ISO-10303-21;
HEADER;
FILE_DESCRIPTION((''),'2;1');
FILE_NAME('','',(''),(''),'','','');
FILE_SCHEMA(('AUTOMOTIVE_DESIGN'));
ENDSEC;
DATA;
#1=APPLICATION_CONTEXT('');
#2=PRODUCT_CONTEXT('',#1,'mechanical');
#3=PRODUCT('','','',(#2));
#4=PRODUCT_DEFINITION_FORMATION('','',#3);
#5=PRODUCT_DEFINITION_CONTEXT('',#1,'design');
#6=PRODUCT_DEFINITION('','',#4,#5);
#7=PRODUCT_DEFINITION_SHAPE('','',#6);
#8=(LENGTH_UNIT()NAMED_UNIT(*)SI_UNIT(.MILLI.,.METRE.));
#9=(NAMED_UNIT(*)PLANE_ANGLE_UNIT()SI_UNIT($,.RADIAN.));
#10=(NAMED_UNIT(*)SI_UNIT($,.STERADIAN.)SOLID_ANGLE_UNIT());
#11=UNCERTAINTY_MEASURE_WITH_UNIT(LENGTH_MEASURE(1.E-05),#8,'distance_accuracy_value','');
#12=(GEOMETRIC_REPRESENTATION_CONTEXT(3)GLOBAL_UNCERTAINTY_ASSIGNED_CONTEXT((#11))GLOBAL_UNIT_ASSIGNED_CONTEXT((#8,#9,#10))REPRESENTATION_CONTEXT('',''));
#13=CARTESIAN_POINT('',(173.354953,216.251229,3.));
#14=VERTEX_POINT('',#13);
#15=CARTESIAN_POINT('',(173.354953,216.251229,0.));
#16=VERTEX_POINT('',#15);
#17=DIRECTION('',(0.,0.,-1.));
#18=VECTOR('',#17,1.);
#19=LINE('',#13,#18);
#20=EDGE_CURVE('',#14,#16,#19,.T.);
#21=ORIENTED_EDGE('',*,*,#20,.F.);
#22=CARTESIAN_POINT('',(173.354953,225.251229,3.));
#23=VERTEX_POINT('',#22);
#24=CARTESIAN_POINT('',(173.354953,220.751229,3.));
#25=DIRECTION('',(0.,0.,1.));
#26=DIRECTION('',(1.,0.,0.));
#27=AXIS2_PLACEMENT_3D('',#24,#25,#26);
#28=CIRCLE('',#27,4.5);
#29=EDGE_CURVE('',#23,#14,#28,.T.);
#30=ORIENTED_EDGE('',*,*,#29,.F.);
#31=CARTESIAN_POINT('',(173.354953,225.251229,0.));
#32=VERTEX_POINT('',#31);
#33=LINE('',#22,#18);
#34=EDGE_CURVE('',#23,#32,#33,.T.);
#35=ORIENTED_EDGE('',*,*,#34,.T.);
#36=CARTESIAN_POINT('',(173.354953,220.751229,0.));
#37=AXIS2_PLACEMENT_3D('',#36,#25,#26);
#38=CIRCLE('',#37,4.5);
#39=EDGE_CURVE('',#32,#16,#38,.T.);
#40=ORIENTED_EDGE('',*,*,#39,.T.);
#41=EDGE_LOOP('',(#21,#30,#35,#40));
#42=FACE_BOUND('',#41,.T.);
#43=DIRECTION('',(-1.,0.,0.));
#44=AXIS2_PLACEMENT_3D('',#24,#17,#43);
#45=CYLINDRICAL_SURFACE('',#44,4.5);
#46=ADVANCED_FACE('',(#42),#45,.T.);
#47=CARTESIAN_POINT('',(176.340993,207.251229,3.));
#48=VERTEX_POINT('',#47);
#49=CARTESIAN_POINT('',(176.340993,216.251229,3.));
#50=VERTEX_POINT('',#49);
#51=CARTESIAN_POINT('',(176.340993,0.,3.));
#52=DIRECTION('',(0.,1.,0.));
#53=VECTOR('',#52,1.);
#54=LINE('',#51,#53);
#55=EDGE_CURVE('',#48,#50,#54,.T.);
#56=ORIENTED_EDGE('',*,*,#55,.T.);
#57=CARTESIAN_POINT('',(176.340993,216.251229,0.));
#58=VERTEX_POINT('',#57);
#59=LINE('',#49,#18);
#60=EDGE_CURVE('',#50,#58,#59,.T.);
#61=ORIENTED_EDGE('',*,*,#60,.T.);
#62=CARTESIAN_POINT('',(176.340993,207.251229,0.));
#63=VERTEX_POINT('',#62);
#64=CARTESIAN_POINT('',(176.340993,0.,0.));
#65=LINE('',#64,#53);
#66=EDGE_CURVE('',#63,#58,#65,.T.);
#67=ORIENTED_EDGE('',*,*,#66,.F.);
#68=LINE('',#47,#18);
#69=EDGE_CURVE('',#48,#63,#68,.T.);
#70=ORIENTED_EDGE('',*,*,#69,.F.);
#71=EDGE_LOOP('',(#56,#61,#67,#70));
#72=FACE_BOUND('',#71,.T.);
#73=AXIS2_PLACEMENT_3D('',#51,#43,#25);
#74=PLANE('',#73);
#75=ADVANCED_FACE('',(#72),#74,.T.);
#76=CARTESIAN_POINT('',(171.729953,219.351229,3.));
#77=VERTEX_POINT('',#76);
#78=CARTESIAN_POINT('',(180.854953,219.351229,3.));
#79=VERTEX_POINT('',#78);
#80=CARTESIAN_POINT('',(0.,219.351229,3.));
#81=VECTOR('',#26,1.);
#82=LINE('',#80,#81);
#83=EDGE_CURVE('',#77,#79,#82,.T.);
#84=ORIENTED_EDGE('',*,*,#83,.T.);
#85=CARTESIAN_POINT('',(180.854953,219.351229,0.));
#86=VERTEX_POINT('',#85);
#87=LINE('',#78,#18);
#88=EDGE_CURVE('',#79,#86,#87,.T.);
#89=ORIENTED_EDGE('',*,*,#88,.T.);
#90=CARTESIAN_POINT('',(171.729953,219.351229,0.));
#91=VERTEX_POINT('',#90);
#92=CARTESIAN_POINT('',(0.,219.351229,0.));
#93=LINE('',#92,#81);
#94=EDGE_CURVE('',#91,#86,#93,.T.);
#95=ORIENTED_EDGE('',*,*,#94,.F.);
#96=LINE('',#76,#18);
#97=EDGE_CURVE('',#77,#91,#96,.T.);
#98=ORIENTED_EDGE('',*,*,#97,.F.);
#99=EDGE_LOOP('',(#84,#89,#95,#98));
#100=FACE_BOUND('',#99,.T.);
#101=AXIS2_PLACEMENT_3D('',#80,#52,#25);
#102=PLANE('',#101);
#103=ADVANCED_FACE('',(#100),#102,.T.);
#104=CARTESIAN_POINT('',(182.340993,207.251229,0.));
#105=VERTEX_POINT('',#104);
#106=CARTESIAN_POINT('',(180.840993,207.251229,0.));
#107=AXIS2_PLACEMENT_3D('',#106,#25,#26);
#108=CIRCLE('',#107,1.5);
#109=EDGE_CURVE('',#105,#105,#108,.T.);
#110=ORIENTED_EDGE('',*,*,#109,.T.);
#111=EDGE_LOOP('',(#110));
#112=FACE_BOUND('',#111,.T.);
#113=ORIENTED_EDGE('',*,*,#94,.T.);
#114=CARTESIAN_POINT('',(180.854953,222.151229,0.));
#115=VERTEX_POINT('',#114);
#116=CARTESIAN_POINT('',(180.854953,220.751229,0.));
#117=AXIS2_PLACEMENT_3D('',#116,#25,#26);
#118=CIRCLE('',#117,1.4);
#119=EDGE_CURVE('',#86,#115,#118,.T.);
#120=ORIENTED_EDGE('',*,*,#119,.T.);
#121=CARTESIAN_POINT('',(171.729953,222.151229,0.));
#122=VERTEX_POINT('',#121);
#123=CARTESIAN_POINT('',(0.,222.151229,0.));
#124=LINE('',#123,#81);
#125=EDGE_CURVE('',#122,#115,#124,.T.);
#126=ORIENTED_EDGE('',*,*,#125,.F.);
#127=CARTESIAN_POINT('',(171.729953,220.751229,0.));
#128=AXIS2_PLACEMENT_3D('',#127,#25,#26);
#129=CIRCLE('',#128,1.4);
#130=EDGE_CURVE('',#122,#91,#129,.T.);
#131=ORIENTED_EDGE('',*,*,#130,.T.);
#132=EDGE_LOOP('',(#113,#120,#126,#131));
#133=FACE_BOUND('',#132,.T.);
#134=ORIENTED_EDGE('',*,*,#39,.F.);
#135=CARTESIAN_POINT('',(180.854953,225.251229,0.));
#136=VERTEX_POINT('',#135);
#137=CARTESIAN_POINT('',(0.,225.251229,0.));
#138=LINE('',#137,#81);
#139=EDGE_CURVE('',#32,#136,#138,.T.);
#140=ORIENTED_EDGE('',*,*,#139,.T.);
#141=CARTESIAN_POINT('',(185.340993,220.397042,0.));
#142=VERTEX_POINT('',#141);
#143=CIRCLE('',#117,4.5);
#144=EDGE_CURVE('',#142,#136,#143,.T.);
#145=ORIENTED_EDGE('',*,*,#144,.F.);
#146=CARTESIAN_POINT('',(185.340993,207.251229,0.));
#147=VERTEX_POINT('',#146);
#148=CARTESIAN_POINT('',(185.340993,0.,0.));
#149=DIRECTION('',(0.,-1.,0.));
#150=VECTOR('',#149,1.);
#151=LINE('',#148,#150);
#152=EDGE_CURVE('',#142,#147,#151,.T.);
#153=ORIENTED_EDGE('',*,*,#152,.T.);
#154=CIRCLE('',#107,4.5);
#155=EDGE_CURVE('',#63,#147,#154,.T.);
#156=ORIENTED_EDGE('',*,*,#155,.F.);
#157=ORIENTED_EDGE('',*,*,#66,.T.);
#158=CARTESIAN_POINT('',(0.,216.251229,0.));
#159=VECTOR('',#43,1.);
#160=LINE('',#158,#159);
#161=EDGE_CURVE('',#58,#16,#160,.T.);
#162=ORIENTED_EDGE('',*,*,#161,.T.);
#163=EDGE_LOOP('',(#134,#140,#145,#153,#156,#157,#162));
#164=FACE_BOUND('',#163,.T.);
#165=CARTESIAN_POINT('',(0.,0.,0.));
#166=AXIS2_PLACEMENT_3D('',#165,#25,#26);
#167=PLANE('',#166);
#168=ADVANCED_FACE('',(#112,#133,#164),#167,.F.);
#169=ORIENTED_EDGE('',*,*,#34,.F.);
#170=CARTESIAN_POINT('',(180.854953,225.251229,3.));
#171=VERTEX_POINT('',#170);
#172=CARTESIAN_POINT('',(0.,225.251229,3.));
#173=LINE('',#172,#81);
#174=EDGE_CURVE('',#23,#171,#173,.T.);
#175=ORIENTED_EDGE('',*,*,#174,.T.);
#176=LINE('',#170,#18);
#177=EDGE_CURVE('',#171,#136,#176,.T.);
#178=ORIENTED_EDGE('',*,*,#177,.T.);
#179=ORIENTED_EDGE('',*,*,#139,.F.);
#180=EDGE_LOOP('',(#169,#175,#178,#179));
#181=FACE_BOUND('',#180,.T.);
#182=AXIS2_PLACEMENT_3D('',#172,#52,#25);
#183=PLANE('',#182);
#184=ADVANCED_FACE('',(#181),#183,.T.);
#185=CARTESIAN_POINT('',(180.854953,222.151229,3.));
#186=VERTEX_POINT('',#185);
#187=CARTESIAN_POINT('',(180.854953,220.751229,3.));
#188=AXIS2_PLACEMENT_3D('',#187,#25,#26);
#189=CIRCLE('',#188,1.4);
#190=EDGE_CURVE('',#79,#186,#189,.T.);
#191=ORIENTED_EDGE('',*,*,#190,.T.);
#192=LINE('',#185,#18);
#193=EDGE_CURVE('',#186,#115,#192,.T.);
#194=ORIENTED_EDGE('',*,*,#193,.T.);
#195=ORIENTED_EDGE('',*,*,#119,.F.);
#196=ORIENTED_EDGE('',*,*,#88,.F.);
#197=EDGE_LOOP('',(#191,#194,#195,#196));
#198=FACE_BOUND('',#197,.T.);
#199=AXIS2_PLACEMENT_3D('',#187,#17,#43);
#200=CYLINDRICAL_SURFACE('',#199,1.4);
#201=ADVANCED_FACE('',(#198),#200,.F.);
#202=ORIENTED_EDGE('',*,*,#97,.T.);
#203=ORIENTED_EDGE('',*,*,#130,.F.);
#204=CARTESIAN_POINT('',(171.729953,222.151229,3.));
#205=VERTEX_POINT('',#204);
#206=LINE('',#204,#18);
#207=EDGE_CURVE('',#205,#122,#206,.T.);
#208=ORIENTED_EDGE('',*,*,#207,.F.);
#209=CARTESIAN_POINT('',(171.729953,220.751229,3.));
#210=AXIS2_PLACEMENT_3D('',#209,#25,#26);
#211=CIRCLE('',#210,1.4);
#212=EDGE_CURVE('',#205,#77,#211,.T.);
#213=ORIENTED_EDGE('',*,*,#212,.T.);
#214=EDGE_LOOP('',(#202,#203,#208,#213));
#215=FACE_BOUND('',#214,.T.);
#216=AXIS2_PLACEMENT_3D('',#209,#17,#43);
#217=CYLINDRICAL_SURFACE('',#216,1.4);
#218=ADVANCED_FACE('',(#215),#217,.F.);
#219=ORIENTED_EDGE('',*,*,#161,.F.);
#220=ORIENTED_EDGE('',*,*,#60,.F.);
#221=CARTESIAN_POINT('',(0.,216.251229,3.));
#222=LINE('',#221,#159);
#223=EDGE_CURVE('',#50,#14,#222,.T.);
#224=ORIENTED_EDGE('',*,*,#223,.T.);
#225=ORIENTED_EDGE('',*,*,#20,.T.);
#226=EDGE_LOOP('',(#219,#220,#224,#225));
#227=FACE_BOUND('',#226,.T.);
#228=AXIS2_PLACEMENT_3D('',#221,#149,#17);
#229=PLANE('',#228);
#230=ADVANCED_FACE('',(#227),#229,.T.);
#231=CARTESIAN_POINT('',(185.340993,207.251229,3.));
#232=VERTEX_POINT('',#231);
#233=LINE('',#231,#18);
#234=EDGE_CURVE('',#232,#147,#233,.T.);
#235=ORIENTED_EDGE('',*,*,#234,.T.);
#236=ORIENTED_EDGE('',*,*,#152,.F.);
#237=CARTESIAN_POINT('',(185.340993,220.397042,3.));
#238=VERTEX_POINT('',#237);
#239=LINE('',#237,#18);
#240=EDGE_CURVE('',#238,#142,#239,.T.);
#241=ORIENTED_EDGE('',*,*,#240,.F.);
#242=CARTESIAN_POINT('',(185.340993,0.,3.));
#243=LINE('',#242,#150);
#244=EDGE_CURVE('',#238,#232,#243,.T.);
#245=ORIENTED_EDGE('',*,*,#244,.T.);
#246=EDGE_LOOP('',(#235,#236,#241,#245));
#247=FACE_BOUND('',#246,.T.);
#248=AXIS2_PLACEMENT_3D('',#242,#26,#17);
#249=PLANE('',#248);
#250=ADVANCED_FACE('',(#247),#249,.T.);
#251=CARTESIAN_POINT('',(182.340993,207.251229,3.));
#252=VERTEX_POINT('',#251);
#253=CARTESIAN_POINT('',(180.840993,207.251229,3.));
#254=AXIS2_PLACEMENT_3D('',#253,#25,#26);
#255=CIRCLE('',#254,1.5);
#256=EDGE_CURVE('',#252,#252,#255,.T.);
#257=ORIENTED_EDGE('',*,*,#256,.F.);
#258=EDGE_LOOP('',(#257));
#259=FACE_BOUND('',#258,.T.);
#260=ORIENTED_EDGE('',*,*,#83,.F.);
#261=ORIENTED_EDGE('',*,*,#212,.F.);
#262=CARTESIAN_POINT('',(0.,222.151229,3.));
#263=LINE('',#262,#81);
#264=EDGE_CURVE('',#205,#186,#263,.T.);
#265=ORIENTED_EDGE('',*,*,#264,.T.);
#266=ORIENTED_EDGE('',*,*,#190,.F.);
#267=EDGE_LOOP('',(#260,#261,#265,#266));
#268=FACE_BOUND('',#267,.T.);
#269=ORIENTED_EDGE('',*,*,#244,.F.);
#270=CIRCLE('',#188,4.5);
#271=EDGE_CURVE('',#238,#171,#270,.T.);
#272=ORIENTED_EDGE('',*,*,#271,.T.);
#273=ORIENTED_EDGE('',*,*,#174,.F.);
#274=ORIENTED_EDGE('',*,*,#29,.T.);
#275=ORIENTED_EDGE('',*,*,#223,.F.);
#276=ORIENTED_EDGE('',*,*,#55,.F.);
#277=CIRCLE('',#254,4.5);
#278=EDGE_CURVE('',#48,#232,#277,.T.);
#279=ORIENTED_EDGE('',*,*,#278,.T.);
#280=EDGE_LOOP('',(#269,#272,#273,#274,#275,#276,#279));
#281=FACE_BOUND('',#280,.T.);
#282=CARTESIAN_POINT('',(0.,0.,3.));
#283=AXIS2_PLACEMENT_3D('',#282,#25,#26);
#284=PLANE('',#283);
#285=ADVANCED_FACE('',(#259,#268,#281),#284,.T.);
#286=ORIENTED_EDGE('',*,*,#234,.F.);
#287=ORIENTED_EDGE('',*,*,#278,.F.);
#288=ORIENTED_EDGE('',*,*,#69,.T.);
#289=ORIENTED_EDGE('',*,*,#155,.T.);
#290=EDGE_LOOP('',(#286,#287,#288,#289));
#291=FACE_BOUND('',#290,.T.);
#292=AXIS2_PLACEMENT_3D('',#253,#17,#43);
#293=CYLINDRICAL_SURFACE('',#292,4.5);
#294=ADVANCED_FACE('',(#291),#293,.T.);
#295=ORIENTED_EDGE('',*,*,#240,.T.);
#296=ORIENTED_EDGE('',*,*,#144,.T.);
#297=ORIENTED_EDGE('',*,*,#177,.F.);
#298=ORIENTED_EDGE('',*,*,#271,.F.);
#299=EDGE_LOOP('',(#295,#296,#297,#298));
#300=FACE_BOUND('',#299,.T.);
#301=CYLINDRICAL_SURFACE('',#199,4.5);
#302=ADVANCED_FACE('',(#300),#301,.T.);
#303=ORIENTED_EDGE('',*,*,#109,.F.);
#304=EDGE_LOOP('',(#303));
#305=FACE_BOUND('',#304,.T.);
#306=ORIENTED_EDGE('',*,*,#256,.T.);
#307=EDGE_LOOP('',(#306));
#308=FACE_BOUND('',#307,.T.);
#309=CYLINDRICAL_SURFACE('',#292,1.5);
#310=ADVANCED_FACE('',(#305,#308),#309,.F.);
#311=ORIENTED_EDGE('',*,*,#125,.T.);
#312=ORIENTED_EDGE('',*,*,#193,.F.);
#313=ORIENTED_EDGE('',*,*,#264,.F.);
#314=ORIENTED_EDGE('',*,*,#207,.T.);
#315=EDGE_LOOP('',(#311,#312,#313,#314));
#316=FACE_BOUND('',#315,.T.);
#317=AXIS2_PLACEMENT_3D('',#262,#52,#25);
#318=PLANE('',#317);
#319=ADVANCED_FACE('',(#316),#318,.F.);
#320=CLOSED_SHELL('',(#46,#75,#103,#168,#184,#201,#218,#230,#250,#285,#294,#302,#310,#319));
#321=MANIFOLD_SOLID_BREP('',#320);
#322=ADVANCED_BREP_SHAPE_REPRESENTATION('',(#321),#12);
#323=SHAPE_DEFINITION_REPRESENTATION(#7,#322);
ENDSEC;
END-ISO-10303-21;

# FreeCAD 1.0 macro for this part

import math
import FreeCAD as App
import Part
import Sketcher
Q = App.Units.Quantity

doc = App.newDocument("Part")
body = doc.addObject("PartDesign::Body", "Body")

sketch1 = doc.addObject("Sketcher::SketchObject", "Sketch")
body.addObject(sketch1)
sketch1.AttachmentSupport = (doc.XY_Plane, [""])
sketch1.MapMode = "FlatFace"
sketch1.addGeometry([
    Part.LineSegment(App.Vector(185.340993, 207.251229, 0), App.Vector(185.340993, 220.397042, 0)),
    Part.ArcOfCircle(Part.Circle(App.Vector(180.854953, 220.751229, 0), App.Vector(0, 0, 1), 4.5), math.radians(-4.514312), math.radians(90)),
    Part.LineSegment(App.Vector(180.854953, 225.251229, 0), App.Vector(173.354953, 225.251229, 0)),
    Part.ArcOfCircle(Part.Circle(App.Vector(173.354953, 220.751229, 0), App.Vector(0, 0, 1), 4.5), math.radians(90), math.radians(270)),
    Part.LineSegment(App.Vector(173.354953, 216.251229, 0), App.Vector(176.340993, 216.251229, 0)),
    Part.LineSegment(App.Vector(176.340993, 216.251229, 0), App.Vector(176.340993, 207.251229, 0)),
    Part.ArcOfCircle(Part.Circle(App.Vector(180.840993, 207.251229, 0), App.Vector(0, 0, 1), 4.5), math.radians(180), math.radians(360)),
    Part.Circle(App.Vector(180.840993, 207.251229, 0), App.Vector(0, 0, 1), 1.5),
    Part.LineSegment(App.Vector(180.854953, 219.351229, 0), App.Vector(171.729953, 219.351229, 0)),
    Part.ArcOfCircle(Part.Circle(App.Vector(171.729953, 220.751229, 0), App.Vector(0, 0, 1), 1.4), math.radians(90), math.radians(270)),
    Part.LineSegment(App.Vector(171.729953, 222.151229, 0), App.Vector(180.854953, 222.151229, 0)),
    Part.ArcOfCircle(Part.Circle(App.Vector(180.854953, 220.751229, 0), App.Vector(0, 0, 1), 1.4), math.radians(-90), math.radians(90)),
], False)
sketch1.addConstraint([
    Sketcher.Constraint("Coincident", 0, 2, 1, 1),
    Sketcher.Constraint("Tangent", 1, 2, 2, 1),
    Sketcher.Constraint("Tangent", 2, 2, 3, 1),
    Sketcher.Constraint("Tangent", 3, 2, 4, 1),
    Sketcher.Constraint("Coincident", 4, 2, 5, 1),
    Sketcher.Constraint("Tangent", 5, 2, 6, 1),
    Sketcher.Constraint("Tangent", 6, 2, 0, 1),
    Sketcher.Constraint("Tangent", 8, 2, 9, 2),
    Sketcher.Constraint("Tangent", 9, 1, 10, 1),
    Sketcher.Constraint("Tangent", 10, 2, 11, 2),
    Sketcher.Constraint("Tangent", 11, 1, 8, 1),
    Sketcher.Constraint("Vertical", 0),
    Sketcher.Constraint("Horizontal", 2),
    Sketcher.Constraint("Horizontal", 4),
    Sketcher.Constraint("Vertical", 5),
    Sketcher.Constraint("Horizontal", 8),
    Sketcher.Constraint("Horizontal", 10),
    Sketcher.Constraint("Coincident", 7, 3, 6, 3),
    Sketcher.Constraint("Coincident", 11, 3, 1, 3),
    Sketcher.Constraint("Equal", 1, 3),
    Sketcher.Constraint("Equal", 3, 6),
    Sketcher.Constraint("Diameter", 7, Q("3 mm")),
    Sketcher.Constraint("Radius", 1, Q("4.5 mm")),
    Sketcher.Constraint("Radius", 9, Q("1.4 mm")),
    Sketcher.Constraint("DistanceY", 5, 2, 5, 1, Q("9 mm")),
    Sketcher.Constraint("DistanceX", 2, 2, 2, 1, Q("7.5 mm")),
    Sketcher.Constraint("DistanceX", 8, 2, 8, 1, Q("9.125 mm")),
    Sketcher.Constraint("DistanceX", 4, 1, 4, 2, Q("2.98604 mm")),
    Sketcher.Constraint("DistanceY", -1, 1, 1, 3, Q("220.751229 mm")),
    Sketcher.Constraint("DistanceX", -1, 1, 1, 3, Q("180.854953 mm")),
])
pad1 = doc.addObject("PartDesign::Pad", "Pad")
body.addObject(pad1)
pad1.Profile = sketch1
pad1.Length = 3

doc.recompute()
